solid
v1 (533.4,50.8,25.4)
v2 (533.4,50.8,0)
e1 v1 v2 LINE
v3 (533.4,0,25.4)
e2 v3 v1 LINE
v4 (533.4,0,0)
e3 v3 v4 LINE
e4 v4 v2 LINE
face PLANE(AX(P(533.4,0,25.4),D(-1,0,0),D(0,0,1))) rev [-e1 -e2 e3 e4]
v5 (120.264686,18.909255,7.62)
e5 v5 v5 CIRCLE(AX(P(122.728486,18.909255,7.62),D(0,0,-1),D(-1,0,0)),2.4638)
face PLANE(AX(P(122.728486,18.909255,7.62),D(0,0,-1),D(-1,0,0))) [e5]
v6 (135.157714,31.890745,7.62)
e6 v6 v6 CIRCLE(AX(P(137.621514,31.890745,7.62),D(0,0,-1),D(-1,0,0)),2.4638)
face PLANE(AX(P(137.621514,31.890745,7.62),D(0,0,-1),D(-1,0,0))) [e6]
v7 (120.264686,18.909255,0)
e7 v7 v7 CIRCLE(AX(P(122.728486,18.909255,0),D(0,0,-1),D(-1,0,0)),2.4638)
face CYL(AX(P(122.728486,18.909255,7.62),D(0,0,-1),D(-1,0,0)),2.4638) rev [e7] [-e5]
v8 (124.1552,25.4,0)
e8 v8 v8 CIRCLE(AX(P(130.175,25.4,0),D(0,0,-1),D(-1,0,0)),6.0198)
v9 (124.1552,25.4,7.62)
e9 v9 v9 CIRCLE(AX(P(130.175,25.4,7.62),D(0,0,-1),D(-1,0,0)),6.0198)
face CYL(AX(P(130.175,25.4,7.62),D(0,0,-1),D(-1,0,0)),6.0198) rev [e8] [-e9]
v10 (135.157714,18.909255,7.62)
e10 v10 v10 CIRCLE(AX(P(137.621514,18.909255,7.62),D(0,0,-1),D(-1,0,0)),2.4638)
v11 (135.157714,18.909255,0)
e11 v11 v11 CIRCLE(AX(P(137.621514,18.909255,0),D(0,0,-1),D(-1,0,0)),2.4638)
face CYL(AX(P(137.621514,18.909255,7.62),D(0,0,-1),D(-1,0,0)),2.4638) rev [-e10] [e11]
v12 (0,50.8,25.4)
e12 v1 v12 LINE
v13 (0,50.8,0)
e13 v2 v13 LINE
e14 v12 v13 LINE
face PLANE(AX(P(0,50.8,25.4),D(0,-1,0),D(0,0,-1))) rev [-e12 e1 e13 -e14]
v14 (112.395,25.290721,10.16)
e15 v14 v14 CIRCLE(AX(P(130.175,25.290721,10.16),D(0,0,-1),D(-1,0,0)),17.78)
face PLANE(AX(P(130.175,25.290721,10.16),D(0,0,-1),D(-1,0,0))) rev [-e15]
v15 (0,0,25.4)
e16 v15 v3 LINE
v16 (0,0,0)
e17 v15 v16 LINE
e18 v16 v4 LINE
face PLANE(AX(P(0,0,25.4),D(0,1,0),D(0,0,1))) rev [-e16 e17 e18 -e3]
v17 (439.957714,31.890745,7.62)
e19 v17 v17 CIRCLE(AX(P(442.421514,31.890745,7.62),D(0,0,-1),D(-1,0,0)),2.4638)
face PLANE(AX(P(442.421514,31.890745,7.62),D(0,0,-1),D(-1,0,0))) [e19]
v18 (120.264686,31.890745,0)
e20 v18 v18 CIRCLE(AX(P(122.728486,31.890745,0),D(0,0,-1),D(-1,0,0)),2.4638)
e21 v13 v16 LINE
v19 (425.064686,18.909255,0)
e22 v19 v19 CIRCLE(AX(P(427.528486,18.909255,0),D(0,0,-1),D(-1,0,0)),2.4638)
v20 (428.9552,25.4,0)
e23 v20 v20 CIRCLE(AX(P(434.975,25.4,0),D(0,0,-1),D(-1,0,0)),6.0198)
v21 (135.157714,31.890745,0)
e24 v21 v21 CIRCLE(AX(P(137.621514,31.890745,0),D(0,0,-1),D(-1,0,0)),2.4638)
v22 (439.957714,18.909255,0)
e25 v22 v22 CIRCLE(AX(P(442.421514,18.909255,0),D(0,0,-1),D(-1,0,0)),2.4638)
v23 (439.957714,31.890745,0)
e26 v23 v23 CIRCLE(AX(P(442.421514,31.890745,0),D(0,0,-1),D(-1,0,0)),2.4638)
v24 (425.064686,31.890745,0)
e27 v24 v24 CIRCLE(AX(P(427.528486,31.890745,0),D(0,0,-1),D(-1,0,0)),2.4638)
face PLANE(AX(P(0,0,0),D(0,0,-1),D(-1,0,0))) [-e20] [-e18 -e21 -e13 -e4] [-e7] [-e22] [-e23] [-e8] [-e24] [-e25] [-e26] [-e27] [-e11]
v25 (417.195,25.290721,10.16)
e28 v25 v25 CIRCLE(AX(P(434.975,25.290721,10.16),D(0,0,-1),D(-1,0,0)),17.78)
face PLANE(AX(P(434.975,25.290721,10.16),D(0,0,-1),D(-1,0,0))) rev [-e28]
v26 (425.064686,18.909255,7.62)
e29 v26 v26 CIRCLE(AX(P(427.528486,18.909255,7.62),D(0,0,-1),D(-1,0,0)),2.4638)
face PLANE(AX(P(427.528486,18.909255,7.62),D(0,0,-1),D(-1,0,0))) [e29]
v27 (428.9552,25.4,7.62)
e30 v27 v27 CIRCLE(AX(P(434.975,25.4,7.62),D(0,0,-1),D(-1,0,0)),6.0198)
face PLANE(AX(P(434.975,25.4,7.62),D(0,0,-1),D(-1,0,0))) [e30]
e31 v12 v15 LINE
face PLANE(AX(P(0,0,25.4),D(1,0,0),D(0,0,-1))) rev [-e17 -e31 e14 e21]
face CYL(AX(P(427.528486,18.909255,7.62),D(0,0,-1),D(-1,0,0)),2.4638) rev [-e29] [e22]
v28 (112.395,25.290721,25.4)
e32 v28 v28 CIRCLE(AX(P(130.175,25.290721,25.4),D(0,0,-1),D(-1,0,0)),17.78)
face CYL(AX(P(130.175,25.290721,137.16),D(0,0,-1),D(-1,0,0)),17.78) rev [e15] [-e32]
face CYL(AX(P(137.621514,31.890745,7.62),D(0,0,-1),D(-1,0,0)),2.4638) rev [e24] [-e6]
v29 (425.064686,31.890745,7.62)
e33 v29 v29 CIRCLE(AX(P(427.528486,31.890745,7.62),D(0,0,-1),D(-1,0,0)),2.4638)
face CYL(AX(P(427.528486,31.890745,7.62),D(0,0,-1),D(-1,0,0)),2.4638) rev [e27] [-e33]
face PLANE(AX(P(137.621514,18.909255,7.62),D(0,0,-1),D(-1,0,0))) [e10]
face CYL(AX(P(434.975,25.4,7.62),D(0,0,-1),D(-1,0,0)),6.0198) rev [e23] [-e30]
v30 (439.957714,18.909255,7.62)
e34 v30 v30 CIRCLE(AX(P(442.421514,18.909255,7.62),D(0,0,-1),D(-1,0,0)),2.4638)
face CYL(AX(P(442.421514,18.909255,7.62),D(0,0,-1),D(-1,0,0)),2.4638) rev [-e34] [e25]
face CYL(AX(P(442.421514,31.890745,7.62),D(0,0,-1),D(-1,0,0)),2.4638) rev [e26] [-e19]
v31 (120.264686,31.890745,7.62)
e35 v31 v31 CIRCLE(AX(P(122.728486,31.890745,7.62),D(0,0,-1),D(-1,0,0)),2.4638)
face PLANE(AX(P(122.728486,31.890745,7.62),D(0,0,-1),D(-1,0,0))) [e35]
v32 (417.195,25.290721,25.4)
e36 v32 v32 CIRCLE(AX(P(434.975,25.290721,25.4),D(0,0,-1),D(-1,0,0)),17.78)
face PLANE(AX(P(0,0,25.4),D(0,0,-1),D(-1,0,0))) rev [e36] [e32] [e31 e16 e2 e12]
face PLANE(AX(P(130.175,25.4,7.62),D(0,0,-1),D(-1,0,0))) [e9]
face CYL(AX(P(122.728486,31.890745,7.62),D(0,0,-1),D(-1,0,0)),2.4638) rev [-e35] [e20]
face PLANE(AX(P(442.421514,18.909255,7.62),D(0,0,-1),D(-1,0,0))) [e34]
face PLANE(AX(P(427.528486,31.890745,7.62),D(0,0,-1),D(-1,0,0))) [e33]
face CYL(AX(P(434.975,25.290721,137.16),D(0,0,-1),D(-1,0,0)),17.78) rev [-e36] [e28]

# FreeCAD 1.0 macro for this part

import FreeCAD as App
import Part
import Sketcher
from FreeCAD import Vector
Q = App.Units.Quantity

doc = App.newDocument("Part")
params = doc.addObject("Spreadsheet::Sheet", "Params")
for row, (alias, value) in enumerate([
    ("sketch1_width", "21 in"),
    ("sketch1_height", "2 in"),
    ("pad1_length", "1 in"),
    ("sketch2_diameter", "1.4 in"),
    ("pocket1_length", "5 in"),
    ("sketch3_diameter", "0.474 in"),
    ("sketch3_diameter2", "0.194 in"),
    ("pocket2_length", "0.3 in"),
], start=1):
    params.set(f"A{row}", alias)
    params.set(f"B{row}", "=" + value)
    params.setAlias(f"B{row}", alias)

body = doc.addObject("PartDesign::Body", "Body")

# Sketch on XY plane
sketch1 = body.newObject("Sketcher::SketchObject", "Sketch")
sketch1.AttachmentSupport = (doc.getObject("XY_Plane"), [""])
sketch1.MapMode = "FlatFace"
sketch1.addGeometry(Part.LineSegment(Vector(0, 51, 0), Vector(0, 0, 0)), False)
sketch1.addGeometry(Part.LineSegment(Vector(0, 0, 0), Vector(533, 0, 0)), False)
sketch1.addGeometry(Part.LineSegment(Vector(533, 0, 0), Vector(533, 51, 0)), False)
sketch1.addGeometry(Part.LineSegment(Vector(533, 51, 0), Vector(0, 51, 0)), False)
sketch1.addConstraint(Sketcher.Constraint("Coincident", 0, 2, 1, 1))
sketch1.addConstraint(Sketcher.Constraint("Coincident", 1, 2, 2, 1))
sketch1.addConstraint(Sketcher.Constraint("Coincident", 2, 2, 3, 1))
sketch1.addConstraint(Sketcher.Constraint("Coincident", 3, 2, 0, 1))
sketch1.addConstraint(Sketcher.Constraint("Vertical", 0))
sketch1.addConstraint(Sketcher.Constraint("Horizontal", 1))
sketch1.addConstraint(Sketcher.Constraint("Vertical", 2))
sketch1.addConstraint(Sketcher.Constraint("Horizontal", 3))
sketch1.addConstraint(Sketcher.Constraint("Coincident", 0, 2, -1, 1))
sketch1.addConstraint(Sketcher.Constraint("DistanceX", 1, 1, 1, 2, Q("21 in")))
sketch1.addConstraint(Sketcher.Constraint("DistanceY", 0, 2, 0, 1, Q("2 in")))
sketch1.setExpression("Constraints[9]", "Params.sketch1_width")
sketch1.setExpression("Constraints[10]", "Params.sketch1_height")
pad1 = body.newObject("PartDesign::Pad", "Pad")
pad1.Profile = sketch1
pad1.setExpression("Length", "Params.pad1_length")

# Sketch on XY plane
sketch2 = body.newObject("Sketcher::SketchObject", "Sketch001")
sketch2.AttachmentSupport = (doc.getObject("XY_Plane"), [""])
sketch2.MapMode = "FlatFace"
sketch2.AttachmentOffset = App.Placement(Vector(0, 0, 0.4 * 25.4), App.Rotation())
sketch2.addGeometry(Part.Circle(Vector(130, 25, 0), Vector(0, 0, 1), 18), False)
sketch2.addGeometry(Part.Circle(Vector(435, 25, 0), Vector(0, 0, 1), 18), False)
sketch2.addConstraint(Sketcher.Constraint("Equal", 0, 1))
sketch2.addConstraint(Sketcher.Constraint("Horizontal", 0, 3, 1, 3))
sketch2.addConstraint(Sketcher.Constraint("Diameter", 0, Q("1.4 in")))
sketch2.addConstraint(Sketcher.Constraint("DistanceX", 0, 3, 1, 3, Q("12 in")))
sketch2.addConstraint(Sketcher.Constraint("DistanceX", -1, 1, 0, 3, Q("5.125 in")))
sketch2.addConstraint(Sketcher.Constraint("DistanceY", -1, 1, 0, 3, 25.290721))
sketch2.setExpression("Constraints[2]", "Params.sketch2_diameter")
pocket1 = body.newObject("PartDesign::Pocket", "Pocket")
pocket1.Profile = sketch2
pocket1.setExpression("Length", "Params.pocket1_length")
pocket1.Reversed = True

# Sketch on XY plane
sketch3 = body.newObject("Sketcher::SketchObject", "Sketch002")
sketch3.AttachmentSupport = (doc.getObject("XY_Plane"), [""])
sketch3.MapMode = "FlatFace"
sketch3.addGeometry(Part.Circle(Vector(130.2, 25.4, 0), Vector(0, 0, 1), 6), False)
sketch3.addGeometry(Part.Circle(Vector(122.7, 18.9, 0), Vector(0, 0, 1), 2.5), False)
sketch3.addGeometry(Part.Circle(Vector(122.7, 31.9, 0), Vector(0, 0, 1), 2.5), False)
sketch3.addGeometry(Part.Circle(Vector(137.6, 18.9, 0), Vector(0, 0, 1), 2.5), False)
sketch3.addGeometry(Part.Circle(Vector(137.6, 31.9, 0), Vector(0, 0, 1), 2.5), False)
sketch3.addGeometry(Part.Circle(Vector(435, 25.4, 0), Vector(0, 0, 1), 6), False)
sketch3.addGeometry(Part.Circle(Vector(427.5, 18.9, 0), Vector(0, 0, 1), 2.5), False)
sketch3.addGeometry(Part.Circle(Vector(427.5, 31.9, 0), Vector(0, 0, 1), 2.5), False)
sketch3.addGeometry(Part.Circle(Vector(442.4, 18.9, 0), Vector(0, 0, 1), 2.5), False)
sketch3.addGeometry(Part.Circle(Vector(442.4, 31.9, 0), Vector(0, 0, 1), 2.5), False)
sketch3.addConstraint(Sketcher.Constraint("Equal", 1, 2))
sketch3.addConstraint(Sketcher.Constraint("Equal", 2, 3))
sketch3.addConstraint(Sketcher.Constraint("Equal", 3, 4))
sketch3.addConstraint(Sketcher.Constraint("Equal", 0, 5))
sketch3.addConstraint(Sketcher.Constraint("Equal", 4, 6))
sketch3.addConstraint(Sketcher.Constraint("Equal", 6, 7))
sketch3.addConstraint(Sketcher.Constraint("Equal", 7, 8))
sketch3.addConstraint(Sketcher.Constraint("Equal", 8, 9))
sketch3.addConstraint(Sketcher.Constraint("Horizontal", 1, 3, 3, 3))
sketch3.addConstraint(Sketcher.Constraint("Horizontal", 2, 3, 4, 3))
sketch3.addConstraint(Sketcher.Constraint("Horizontal", 0, 3, 5, 3))
sketch3.addConstraint(Sketcher.Constraint("Horizontal", 3, 3, 6, 3))
sketch3.addConstraint(Sketcher.Constraint("Horizontal", 4, 3, 7, 3))
sketch3.addConstraint(Sketcher.Constraint("Horizontal", 6, 3, 8, 3))
sketch3.addConstraint(Sketcher.Constraint("Horizontal", 7, 3, 9, 3))
sketch3.addConstraint(Sketcher.Constraint("Vertical", 1, 3, 2, 3))
sketch3.addConstraint(Sketcher.Constraint("Vertical", 3, 3, 4, 3))
sketch3.addConstraint(Sketcher.Constraint("Vertical", 6, 3, 7, 3))
sketch3.addConstraint(Sketcher.Constraint("Vertical", 8, 3, 9, 3))
sketch3.addConstraint(Sketcher.Constraint("Diameter", 0, Q("0.474 in")))
sketch3.addConstraint(Sketcher.Constraint("Diameter", 1, Q("0.194 in")))
sketch3.addConstraint(Sketcher.Constraint("DistanceY", -1, 1, 0, 3, Q("1 in")))
sketch3.addConstraint(Sketcher.Constraint("DistanceX", 0, 3, 5, 3, Q("12 in")))
sketch3.addConstraint(Sketcher.Constraint("DistanceX", 1, 3, 6, 3, Q("12 in")))
sketch3.addConstraint(Sketcher.Constraint("DistanceX", 3, 3, 8, 3, Q("12 in")))
sketch3.addConstraint(Sketcher.Constraint("DistanceX", -1, 1, 0, 3, Q("5.125 in")))
sketch3.addConstraint(Sketcher.Constraint("DistanceY", 1, 3, 2, 3, 12.981489))
sketch3.addConstraint(Sketcher.Constraint("DistanceX", -1, 1, 1, 3, 122.728486))
sketch3.addConstraint(Sketcher.Constraint("DistanceY", -1, 1, 1, 3, 18.909255))
sketch3.addConstraint(Sketcher.Constraint("DistanceX", -1, 1, 3, 3, 137.621514))
sketch3.setExpression("Constraints[19]", "Params.sketch3_diameter")
sketch3.setExpression("Constraints[20]", "Params.sketch3_diameter2")
pocket2 = body.newObject("PartDesign::Pocket", "Pocket001")
pocket2.Profile = sketch3
pocket2.setExpression("Length", "Params.pocket2_length")
pocket2.Reversed = True

doc.recompute()
